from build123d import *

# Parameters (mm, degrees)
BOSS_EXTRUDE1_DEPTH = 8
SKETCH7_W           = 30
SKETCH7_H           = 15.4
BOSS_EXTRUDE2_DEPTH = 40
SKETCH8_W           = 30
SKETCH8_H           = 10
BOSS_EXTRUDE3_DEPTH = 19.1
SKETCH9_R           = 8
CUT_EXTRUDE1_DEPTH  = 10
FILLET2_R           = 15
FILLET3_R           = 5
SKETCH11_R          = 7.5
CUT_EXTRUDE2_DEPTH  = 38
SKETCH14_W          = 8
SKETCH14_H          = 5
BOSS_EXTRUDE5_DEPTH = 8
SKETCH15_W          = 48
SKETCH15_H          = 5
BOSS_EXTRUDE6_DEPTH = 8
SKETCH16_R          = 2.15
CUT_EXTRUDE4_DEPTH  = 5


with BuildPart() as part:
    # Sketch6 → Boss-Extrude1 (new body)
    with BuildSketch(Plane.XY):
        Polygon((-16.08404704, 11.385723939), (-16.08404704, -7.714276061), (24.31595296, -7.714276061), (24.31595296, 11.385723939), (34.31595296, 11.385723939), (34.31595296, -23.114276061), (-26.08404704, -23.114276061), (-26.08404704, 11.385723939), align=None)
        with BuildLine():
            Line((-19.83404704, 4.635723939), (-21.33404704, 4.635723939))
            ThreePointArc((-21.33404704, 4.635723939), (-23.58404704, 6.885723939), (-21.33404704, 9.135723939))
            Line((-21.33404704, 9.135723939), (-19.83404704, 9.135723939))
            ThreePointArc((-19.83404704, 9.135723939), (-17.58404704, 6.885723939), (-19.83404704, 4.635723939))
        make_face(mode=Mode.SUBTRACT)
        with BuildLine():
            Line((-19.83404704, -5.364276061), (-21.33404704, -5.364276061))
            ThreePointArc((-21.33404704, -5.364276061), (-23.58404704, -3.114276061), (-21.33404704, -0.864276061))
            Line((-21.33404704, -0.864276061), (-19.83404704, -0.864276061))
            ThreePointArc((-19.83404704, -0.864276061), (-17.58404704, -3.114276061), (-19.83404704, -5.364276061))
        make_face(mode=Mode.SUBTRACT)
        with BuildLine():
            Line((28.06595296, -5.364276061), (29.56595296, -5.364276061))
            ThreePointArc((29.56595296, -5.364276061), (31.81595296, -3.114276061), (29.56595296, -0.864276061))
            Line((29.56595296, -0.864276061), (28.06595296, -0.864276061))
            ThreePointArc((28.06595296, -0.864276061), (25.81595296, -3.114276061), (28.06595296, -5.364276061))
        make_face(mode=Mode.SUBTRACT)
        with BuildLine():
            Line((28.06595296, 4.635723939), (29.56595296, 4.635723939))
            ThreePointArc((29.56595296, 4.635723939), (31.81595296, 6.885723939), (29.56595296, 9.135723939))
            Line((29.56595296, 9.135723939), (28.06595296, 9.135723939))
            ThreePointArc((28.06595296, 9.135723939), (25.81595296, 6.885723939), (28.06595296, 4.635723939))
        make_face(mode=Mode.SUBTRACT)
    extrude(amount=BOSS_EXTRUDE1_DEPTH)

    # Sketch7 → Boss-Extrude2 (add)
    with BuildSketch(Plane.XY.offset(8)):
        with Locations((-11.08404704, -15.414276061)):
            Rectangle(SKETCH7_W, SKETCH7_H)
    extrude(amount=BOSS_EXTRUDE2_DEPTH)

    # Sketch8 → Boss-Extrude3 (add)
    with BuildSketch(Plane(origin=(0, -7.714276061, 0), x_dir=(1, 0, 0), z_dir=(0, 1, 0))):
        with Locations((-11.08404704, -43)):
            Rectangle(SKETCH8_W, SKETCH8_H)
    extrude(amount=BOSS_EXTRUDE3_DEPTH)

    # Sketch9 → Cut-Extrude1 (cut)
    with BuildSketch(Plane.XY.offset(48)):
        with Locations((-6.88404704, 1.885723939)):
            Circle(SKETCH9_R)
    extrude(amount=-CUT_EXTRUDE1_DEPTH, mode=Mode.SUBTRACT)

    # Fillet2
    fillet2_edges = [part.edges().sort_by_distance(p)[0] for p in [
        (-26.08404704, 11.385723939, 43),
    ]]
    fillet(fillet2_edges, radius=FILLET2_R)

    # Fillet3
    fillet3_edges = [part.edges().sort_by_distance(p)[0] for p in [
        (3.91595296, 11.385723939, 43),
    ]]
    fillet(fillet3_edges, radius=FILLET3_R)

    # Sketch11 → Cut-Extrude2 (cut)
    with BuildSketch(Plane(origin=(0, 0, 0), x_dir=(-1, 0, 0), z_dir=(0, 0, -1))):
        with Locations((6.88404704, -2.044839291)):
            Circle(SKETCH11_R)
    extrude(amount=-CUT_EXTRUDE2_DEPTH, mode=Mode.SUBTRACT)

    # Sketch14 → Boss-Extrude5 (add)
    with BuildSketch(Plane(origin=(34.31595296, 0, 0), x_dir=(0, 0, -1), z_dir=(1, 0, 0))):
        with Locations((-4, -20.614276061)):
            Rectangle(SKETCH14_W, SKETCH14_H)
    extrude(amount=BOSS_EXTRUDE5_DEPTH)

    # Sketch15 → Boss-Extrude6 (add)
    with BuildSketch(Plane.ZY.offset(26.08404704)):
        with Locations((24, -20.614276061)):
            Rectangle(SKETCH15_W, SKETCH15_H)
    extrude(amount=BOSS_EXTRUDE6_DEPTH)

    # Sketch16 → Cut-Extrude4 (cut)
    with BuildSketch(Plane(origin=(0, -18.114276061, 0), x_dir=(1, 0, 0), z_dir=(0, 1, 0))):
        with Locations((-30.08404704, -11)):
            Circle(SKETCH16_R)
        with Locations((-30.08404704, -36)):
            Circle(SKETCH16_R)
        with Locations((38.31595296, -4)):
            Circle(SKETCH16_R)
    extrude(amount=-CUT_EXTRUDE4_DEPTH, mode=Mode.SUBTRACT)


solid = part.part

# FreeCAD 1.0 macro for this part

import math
import FreeCAD as App
import Part
import Sketcher
Q = App.Units.Quantity


def edges_at(feature, points):
    """Names of the edges that pass closest to the given points."""
    edges = feature.Shape.Edges
    near = lambda p: min(range(len(edges)), key=lambda i: edges[i].distToShape(Part.Vertex(*p))[0])
    return sorted({f"Edge{near(p) + 1}" for p in points})

doc = App.newDocument("Part")
body = doc.addObject("PartDesign::Body", "Body")

# Sketch on XY plane
sketch1 = doc.addObject("Sketcher::SketchObject", "Sketch")
body.addObject(sketch1)
sketch1.AttachmentSupport = (doc.XY_Plane, [""])
sketch1.MapMode = "FlatFace"
sketch1.addGeometry(Part.LineSegment(App.Vector(-16.084047, -7.714276, 0), App.Vector(-16.084047, 11.385724, 0)), False)
sketch1.addGeometry(Part.LineSegment(App.Vector(-16.084047, 11.385724, 0), App.Vector(-26.084047, 11.385724, 0)), False)
sketch1.addGeometry(Part.LineSegment(App.Vector(-26.084047, 11.385724, 0), App.Vector(-26.084047, -23.114276, 0)), False)
sketch1.addGeometry(Part.LineSegment(App.Vector(-26.084047, -23.114276, 0), App.Vector(34.315953, -23.114276, 0)), False)
sketch1.addGeometry(Part.LineSegment(App.Vector(34.315953, -23.114276, 0), App.Vector(34.315953, 11.385724, 0)), False)
sketch1.addGeometry(Part.LineSegment(App.Vector(34.315953, 11.385724, 0), App.Vector(24.315953, 11.385724, 0)), False)
sketch1.addGeometry(Part.LineSegment(App.Vector(24.315953, 11.385724, 0), App.Vector(24.315953, -7.714276, 0)), False)
sketch1.addGeometry(Part.LineSegment(App.Vector(24.315953, -7.714276, 0), App.Vector(-16.084047, -7.714276, 0)), False)
sketch1.addGeometry(Part.ArcOfCircle(Part.Circle(App.Vector(28.065953, -3.114276, 0), App.Vector(0, 0, 1), 2.25), math.radians(90), math.radians(270)), False)
sketch1.addGeometry(Part.LineSegment(App.Vector(28.065953, -0.864276, 0), App.Vector(29.565953, -0.864276, 0)), False)
sketch1.addGeometry(Part.ArcOfCircle(Part.Circle(App.Vector(29.565953, -3.114276, 0), App.Vector(0, 0, 1), 2.25), math.radians(-90), math.radians(90)), False)
sketch1.addGeometry(Part.LineSegment(App.Vector(29.565953, -5.364276, 0), App.Vector(28.065953, -5.364276, 0)), False)
sketch1.addGeometry(Part.LineSegment(App.Vector(-19.834047, -5.364276, 0), App.Vector(-21.334047, -5.364276, 0)), False)
sketch1.addGeometry(Part.ArcOfCircle(Part.Circle(App.Vector(-21.334047, -3.114276, 0), App.Vector(0, 0, 1), 2.25), math.radians(90), math.radians(270)), False)
sketch1.addGeometry(Part.LineSegment(App.Vector(-21.334047, -0.864276, 0), App.Vector(-19.834047, -0.864276, 0)), False)
sketch1.addGeometry(Part.ArcOfCircle(Part.Circle(App.Vector(-19.834047, -3.114276, 0), App.Vector(0, 0, 1), 2.25), math.radians(-90), math.radians(90)), False)
sketch1.addGeometry(Part.ArcOfCircle(Part.Circle(App.Vector(28.065953, 6.885724, 0), App.Vector(0, 0, 1), 2.25), math.radians(90), math.radians(270)), False)
sketch1.addGeometry(Part.LineSegment(App.Vector(28.065953, 9.135724, 0), App.Vector(29.565953, 9.135724, 0)), False)
sketch1.addGeometry(Part.ArcOfCircle(Part.Circle(App.Vector(29.565953, 6.885724, 0), App.Vector(0, 0, 1), 2.25), math.radians(-90), math.radians(90)), False)
sketch1.addGeometry(Part.LineSegment(App.Vector(29.565953, 4.635724, 0), App.Vector(28.065953, 4.635724, 0)), False)
sketch1.addGeometry(Part.LineSegment(App.Vector(-19.834047, 4.635724, 0), App.Vector(-21.334047, 4.635724, 0)), False)
sketch1.addGeometry(Part.ArcOfCircle(Part.Circle(App.Vector(-21.334047, 6.885724, 0), App.Vector(0, 0, 1), 2.25), math.radians(90), math.radians(270)), False)
sketch1.addGeometry(Part.LineSegment(App.Vector(-21.334047, 9.135724, 0), App.Vector(-19.834047, 9.135724, 0)), False)
sketch1.addGeometry(Part.ArcOfCircle(Part.Circle(App.Vector(-19.834047, 6.885724, 0), App.Vector(0, 0, 1), 2.25), math.radians(-90), math.radians(90)), False)
sketch1.addConstraint(Sketcher.Constraint("Coincident", 0, 2, 1, 1))
sketch1.addConstraint(Sketcher.Constraint("Coincident", 1, 2, 2, 1))
sketch1.addConstraint(Sketcher.Constraint("Coincident", 2, 2, 3, 1))
sketch1.addConstraint(Sketcher.Constraint("Coincident", 3, 2, 4, 1))
sketch1.addConstraint(Sketcher.Constraint("Coincident", 4, 2, 5, 1))
sketch1.addConstraint(Sketcher.Constraint("Coincident", 5, 2, 6, 1))
sketch1.addConstraint(Sketcher.Constraint("Coincident", 6, 2, 7, 1))
sketch1.addConstraint(Sketcher.Constraint("Coincident", 7, 2, 0, 1))
sketch1.addConstraint(Sketcher.Constraint("Tangent", 8, 1, 9, 1))
sketch1.addConstraint(Sketcher.Constraint("Tangent", 9, 2, 10, 2))
sketch1.addConstraint(Sketcher.Constraint("Tangent", 10, 1, 11, 1))
sketch1.addConstraint(Sketcher.Constraint("Tangent", 11, 2, 8, 2))
sketch1.addConstraint(Sketcher.Constraint("Tangent", 12, 2, 13, 2))
sketch1.addConstraint(Sketcher.Constraint("Tangent", 13, 1, 14, 1))
sketch1.addConstraint(Sketcher.Constraint("Tangent", 14, 2, 15, 2))
sketch1.addConstraint(Sketcher.Constraint("Tangent", 15, 1, 12, 1))
sketch1.addConstraint(Sketcher.Constraint("Tangent", 16, 1, 17, 1))
sketch1.addConstraint(Sketcher.Constraint("Tangent", 17, 2, 18, 2))
sketch1.addConstraint(Sketcher.Constraint("Tangent", 18, 1, 19, 1))
sketch1.addConstraint(Sketcher.Constraint("Tangent", 19, 2, 16, 2))
sketch1.addConstraint(Sketcher.Constraint("Tangent", 20, 2, 21, 2))
sketch1.addConstraint(Sketcher.Constraint("Tangent", 21, 1, 22, 1))
sketch1.addConstraint(Sketcher.Constraint("Tangent", 22, 2, 23, 2))
sketch1.addConstraint(Sketcher.Constraint("Tangent", 23, 1, 20, 1))
sketch1.addConstraint(Sketcher.Constraint("Vertical", 0))
sketch1.addConstraint(Sketcher.Constraint("Horizontal", 1))
sketch1.addConstraint(Sketcher.Constraint("Vertical", 2))
sketch1.addConstraint(Sketcher.Constraint("Horizontal", 3))
sketch1.addConstraint(Sketcher.Constraint("Vertical", 4))
sketch1.addConstraint(Sketcher.Constraint("Horizontal", 5))
sketch1.addConstraint(Sketcher.Constraint("Vertical", 6))
sketch1.addConstraint(Sketcher.Constraint("Horizontal", 7))
sketch1.addConstraint(Sketcher.Constraint("Horizontal", 9))
sketch1.addConstraint(Sketcher.Constraint("Horizontal", 11))
sketch1.addConstraint(Sketcher.Constraint("Horizontal", 12))
sketch1.addConstraint(Sketcher.Constraint("Horizontal", 14))
sketch1.addConstraint(Sketcher.Constraint("Horizontal", 17))
sketch1.addConstraint(Sketcher.Constraint("Horizontal", 19))
sketch1.addConstraint(Sketcher.Constraint("Horizontal", 20))
sketch1.addConstraint(Sketcher.Constraint("Horizontal", 22))
sketch1.addConstraint(Sketcher.Constraint("Equal", 10, 13))
sketch1.addConstraint(Sketcher.Constraint("Equal", 15, 16))
sketch1.addConstraint(Sketcher.Constraint("Equal", 18, 21))
sketch1.addConstraint(Sketcher.Constraint("Horizontal", 10, 3, 13, 3))
sketch1.addConstraint(Sketcher.Constraint("Horizontal", 18, 3, 21, 3))
sketch1.addConstraint(Sketcher.Constraint("Horizontal", 1, 2, 4, 2))
sketch1.addConstraint(Sketcher.Constraint("Vertical", 8, 3, 16, 3))
sketch1.addConstraint(Sketcher.Constraint("Vertical", 10, 3, 18, 3))
sketch1.addConstraint(Sketcher.Constraint("Vertical", 13, 3, 21, 3))
sketch1.addConstraint(Sketcher.Constraint("Vertical", 15, 3, 23, 3))
sketch1.addConstraint(Sketcher.Constraint("Equal", 1, 5))
sketch1.addConstraint(Sketcher.Constraint("Equal", 11, 12))
sketch1.addConstraint(Sketcher.Constraint("DistanceX", 1, 2, 1, 1, Q("10 mm")))
sketch1.addConstraint(Sketcher.Constraint("Radius", 8, Q("2.25 mm")))
sketch1.addConstraint(Sketcher.Constraint("DistanceX", 3, 1, 3, 2, Q("60.4 mm")))
sketch1.addConstraint(Sketcher.Constraint("DistanceX", 9, 1, 9, 2, Q("1.5 mm")))
sketch1.addConstraint(Sketcher.Constraint("DistanceY", 0, 1, 0, 2, Q("19.1 mm")))
sketch1.addConstraint(Sketcher.Constraint("DistanceY", 2, 2, 2, 1, Q("34.5 mm")))
sketch1.addConstraint(Sketcher.Constraint("DistanceY", 8, 3, 16, 3, Q("10 mm")))
sketch1.addConstraint(Sketcher.Constraint("DistanceY", 2, 2, 13, 3, Q("20 mm")))
sketch1.addConstraint(Sketcher.Constraint("DistanceX", 13, 3, 8, 3, Q("49.4 mm")))
sketch1.addConstraint(Sketcher.Constraint("DistanceX", 23, 3, 0, 2, Q("3.75 mm")))
sketch1.addConstraint(Sketcher.Constraint("DistanceX", -1, 1, 8, 3, Q("28.065953 mm")))
sketch1.addConstraint(Sketcher.Constraint("DistanceY", 8, 3, -1, 1, Q("3.114276 mm")))
pad1 = doc.addObject("PartDesign::Pad", "Pad")
body.addObject(pad1)
pad1.Profile = sketch1
pad1.Length = 8

# Sketch on XY plane
sketch2 = doc.addObject("Sketcher::SketchObject", "Sketch001")
body.addObject(sketch2)
sketch2.AttachmentSupport = (doc.XY_Plane, [""])
sketch2.MapMode = "FlatFace"
sketch2.AttachmentOffset = App.Placement(App.Vector(0, 0, 8), App.Rotation())
sketch2.addGeometry(Part.LineSegment(App.Vector(-26.084047, -7.714276, 0), App.Vector(-26.084047, -23.114276, 0)), False)
sketch2.addGeometry(Part.LineSegment(App.Vector(-26.084047, -23.114276, 0), App.Vector(3.915953, -23.114276, 0)), False)
sketch2.addGeometry(Part.LineSegment(App.Vector(3.915953, -23.114276, 0), App.Vector(3.915953, -7.714276, 0)), False)
sketch2.addGeometry(Part.LineSegment(App.Vector(3.915953, -7.714276, 0), App.Vector(-26.084047, -7.714276, 0)), False)
sketch2.addConstraint(Sketcher.Constraint("Coincident", 0, 2, 1, 1))
sketch2.addConstraint(Sketcher.Constraint("Coincident", 1, 2, 2, 1))
sketch2.addConstraint(Sketcher.Constraint("Coincident", 2, 2, 3, 1))
sketch2.addConstraint(Sketcher.Constraint("Coincident", 3, 2, 0, 1))
sketch2.addConstraint(Sketcher.Constraint("Vertical", 0))
sketch2.addConstraint(Sketcher.Constraint("Horizontal", 1))
sketch2.addConstraint(Sketcher.Constraint("Vertical", 2))
sketch2.addConstraint(Sketcher.Constraint("Horizontal", 3))
sketch2.addConstraint(Sketcher.Constraint("DistanceX", 1, 1, 1, 2, Q("30 mm")))
sketch2.addConstraint(Sketcher.Constraint("DistanceY", 0, 2, 0, 1, Q("15.4 mm")))
sketch2.addConstraint(Sketcher.Constraint("DistanceX", 0, 2, -1, 1, Q("26.084047 mm")))
sketch2.addConstraint(Sketcher.Constraint("DistanceY", 0, 2, -1, 1, Q("23.114276 mm")))
pad2 = doc.addObject("PartDesign::Pad", "Pad001")
body.addObject(pad2)
pad2.Profile = sketch2
pad2.Length = 40

# Sketch on XZ plane
sketch3 = doc.addObject("Sketcher::SketchObject", "Sketch002")
body.addObject(sketch3)
sketch3.AttachmentSupport = (doc.XZ_Plane, [""])
sketch3.MapMode = "FlatFace"
sketch3.AttachmentOffset = App.Placement(App.Vector(0, 0, 7.714276), App.Rotation())
sketch3.addGeometry(Part.LineSegment(App.Vector(-26.084047, 38, 0), App.Vector(-26.084047, 48, 0)), False)
sketch3.addGeometry(Part.LineSegment(App.Vector(-26.084047, 48, 0), App.Vector(3.915953, 48, 0)), False)
sketch3.addGeometry(Part.LineSegment(App.Vector(3.915953, 48, 0), App.Vector(3.915953, 38, 0)), False)
sketch3.addGeometry(Part.LineSegment(App.Vector(3.915953, 38, 0), App.Vector(-26.084047, 38, 0)), False)
sketch3.addConstraint(Sketcher.Constraint("Coincident", 0, 2, 1, 1))
sketch3.addConstraint(Sketcher.Constraint("Coincident", 1, 2, 2, 1))
sketch3.addConstraint(Sketcher.Constraint("Coincident", 2, 2, 3, 1))
sketch3.addConstraint(Sketcher.Constraint("Coincident", 3, 2, 0, 1))
sketch3.addConstraint(Sketcher.Constraint("Vertical", 0))
sketch3.addConstraint(Sketcher.Constraint("Horizontal", 1))
sketch3.addConstraint(Sketcher.Constraint("Vertical", 2))
sketch3.addConstraint(Sketcher.Constraint("Horizontal", 3))
sketch3.addConstraint(Sketcher.Constraint("DistanceX", 1, 1, 1, 2, Q("30 mm")))
sketch3.addConstraint(Sketcher.Constraint("DistanceY", 0, 1, 0, 2, Q("10 mm")))
sketch3.addConstraint(Sketcher.Constraint("DistanceY", -1, 1, 0, 2, Q("48 mm")))
sketch3.addConstraint(Sketcher.Constraint("DistanceX", 0, 2, -1, 1, Q("26.084047 mm")))
pad3 = doc.addObject("PartDesign::Pad", "Pad002")
body.addObject(pad3)
pad3.Profile = sketch3
pad3.Length = 19.1
pad3.Reversed = True

# Sketch on XY plane
sketch4 = doc.addObject("Sketcher::SketchObject", "Sketch003")
body.addObject(sketch4)
sketch4.AttachmentSupport = (doc.XY_Plane, [""])
sketch4.MapMode = "FlatFace"
sketch4.AttachmentOffset = App.Placement(App.Vector(0, 0, 48), App.Rotation())
sketch4.addGeometry(Part.Circle(App.Vector(-6.884047, 1.885724, 0), App.Vector(0, 0, 1), 8), False)
sketch4.addConstraint(Sketcher.Constraint("Diameter", 0, Q("16 mm")))
sketch4.addConstraint(Sketcher.Constraint("DistanceX", 0, 3, -1, 1, Q("6.884047 mm")))
sketch4.addConstraint(Sketcher.Constraint("DistanceY", -1, 1, 0, 3, Q("1.885724 mm")))
pocket1 = doc.addObject("PartDesign::Pocket", "Pocket")
body.addObject(pocket1)
pocket1.Profile = sketch4
pocket1.Length = 10
doc.recompute()

fillet = doc.addObject("PartDesign::Fillet", "Fillet")
body.addObject(fillet)
fillet.Base = (pocket1, edges_at(pocket1, [(-26.084, 11.386, 43)]))
fillet.Radius = 15
doc.recompute()

fillet2 = doc.addObject("PartDesign::Fillet", "Fillet001")
body.addObject(fillet2)
fillet2.Base = (fillet, edges_at(fillet, [(3.916, 11.386, 43)]))
fillet2.Radius = 5

# Sketch on XY plane
sketch5 = doc.addObject("Sketcher::SketchObject", "Sketch004")
body.addObject(sketch5)
sketch5.AttachmentSupport = (doc.XY_Plane, [""])
sketch5.MapMode = "FlatFace"
sketch5.addGeometry(Part.Circle(App.Vector(-6.884047, -2.044839, 0), App.Vector(0, 0, 1), 7.5), False)
sketch5.addConstraint(Sketcher.Constraint("Diameter", 0, Q("15 mm")))
sketch5.addConstraint(Sketcher.Constraint("DistanceY", 0, 3, -1, 1, Q("2.044839 mm")))
sketch5.addConstraint(Sketcher.Constraint("DistanceX", 0, 3, -1, 1, Q("6.884047 mm")))
pocket2 = doc.addObject("PartDesign::Pocket", "Pocket001")
body.addObject(pocket2)
pocket2.Profile = sketch5
pocket2.Length = 38
pocket2.Reversed = True

# Sketch on YZ plane
sketch6 = doc.addObject("Sketcher::SketchObject", "Sketch005")
body.addObject(sketch6)
sketch6.AttachmentSupport = (doc.YZ_Plane, [""])
sketch6.MapMode = "FlatFace"
sketch6.AttachmentOffset = App.Placement(App.Vector(0, 0, 34.315953), App.Rotation())
sketch6.addGeometry(Part.LineSegment(App.Vector(-18.114276, 8, 0), App.Vector(-23.114276, 8, 0)), False)
sketch6.addGeometry(Part.LineSegment(App.Vector(-23.114276, 8, 0), App.Vector(-23.114276, 0, 0)), False)
sketch6.addGeometry(Part.LineSegment(App.Vector(-23.114276, 0, 0), App.Vector(-18.114276, 0, 0)), False)
sketch6.addGeometry(Part.LineSegment(App.Vector(-18.114276, 0, 0), App.Vector(-18.114276, 8, 0)), False)
sketch6.addConstraint(Sketcher.Constraint("Coincident", 0, 2, 1, 1))
sketch6.addConstraint(Sketcher.Constraint("Coincident", 1, 2, 2, 1))
sketch6.addConstraint(Sketcher.Constraint("Coincident", 2, 2, 3, 1))
sketch6.addConstraint(Sketcher.Constraint("Coincident", 3, 2, 0, 1))
sketch6.addConstraint(Sketcher.Constraint("Horizontal", 0))
sketch6.addConstraint(Sketcher.Constraint("Vertical", 1))
sketch6.addConstraint(Sketcher.Constraint("Horizontal", 2))
sketch6.addConstraint(Sketcher.Constraint("Vertical", 3))
sketch6.addConstraint(Sketcher.Constraint("PointOnObject", 1, 2, -1))
sketch6.addConstraint(Sketcher.Constraint("DistanceX", 0, 2, 0, 1, Q("5 mm")))
sketch6.addConstraint(Sketcher.Constraint("DistanceY", 1, 2, 1, 1, Q("8 mm")))
sketch6.addConstraint(Sketcher.Constraint("DistanceX", 0, 2, -1, 1, Q("23.114276 mm")))
pad4 = doc.addObject("PartDesign::Pad", "Pad003")
body.addObject(pad4)
pad4.Profile = sketch6
pad4.Length = 8

# Sketch on YZ plane
sketch7 = doc.addObject("Sketcher::SketchObject", "Sketch006")
body.addObject(sketch7)
sketch7.AttachmentSupport = (doc.YZ_Plane, [""])
sketch7.MapMode = "FlatFace"
sketch7.AttachmentOffset = App.Placement(App.Vector(0, 0, -26.084047), App.Rotation())
sketch7.addGeometry(Part.LineSegment(App.Vector(-18.114276, 0, 0), App.Vector(-23.114276, 0, 0)), False)
sketch7.addGeometry(Part.LineSegment(App.Vector(-23.114276, 0, 0), App.Vector(-23.114276, 48, 0)), False)
sketch7.addGeometry(Part.LineSegment(App.Vector(-23.114276, 48, 0), App.Vector(-18.114276, 48, 0)), False)
sketch7.addGeometry(Part.LineSegment(App.Vector(-18.114276, 48, 0), App.Vector(-18.114276, 0, 0)), False)
sketch7.addConstraint(Sketcher.Constraint("Coincident", 0, 2, 1, 1))
sketch7.addConstraint(Sketcher.Constraint("Coincident", 1, 2, 2, 1))
sketch7.addConstraint(Sketcher.Constraint("Coincident", 2, 2, 3, 1))
sketch7.addConstraint(Sketcher.Constraint("Coincident", 3, 2, 0, 1))
sketch7.addConstraint(Sketcher.Constraint("Horizontal", 0))
sketch7.addConstraint(Sketcher.Constraint("Vertical", 1))
sketch7.addConstraint(Sketcher.Constraint("Horizontal", 2))
sketch7.addConstraint(Sketcher.Constraint("Vertical", 3))
sketch7.addConstraint(Sketcher.Constraint("PointOnObject", 0, 2, -1))
sketch7.addConstraint(Sketcher.Constraint("DistanceX", 0, 2, 0, 1, Q("5 mm")))
sketch7.addConstraint(Sketcher.Constraint("DistanceY", 1, 1, 1, 2, Q("48 mm")))
sketch7.addConstraint(Sketcher.Constraint("DistanceX", 0, 2, -1, 1, Q("23.114276 mm")))
pad5 = doc.addObject("PartDesign::Pad", "Pad004")
body.addObject(pad5)
pad5.Profile = sketch7
pad5.Length = 8
pad5.Reversed = True

# Sketch on XZ plane
sketch8 = doc.addObject("Sketcher::SketchObject", "Sketch007")
body.addObject(sketch8)
sketch8.AttachmentSupport = (doc.XZ_Plane, [""])
sketch8.MapMode = "FlatFace"
sketch8.AttachmentOffset = App.Placement(App.Vector(0, 0, 18.114276), App.Rotation())
sketch8.addGeometry(Part.Circle(App.Vector(-30.084047, 11, 0), App.Vector(0, 0, 1), 2.15), False)
sketch8.addGeometry(Part.Circle(App.Vector(-30.084047, 36, 0), App.Vector(0, 0, 1), 2.15), False)
sketch8.addGeometry(Part.Circle(App.Vector(38.315953, 4, 0), App.Vector(0, 0, 1), 2.15), False)
sketch8.addConstraint(Sketcher.Constraint("Equal", 0, 1))
sketch8.addConstraint(Sketcher.Constraint("Equal", 1, 2))
sketch8.addConstraint(Sketcher.Constraint("Vertical", 0, 3, 1, 3))
sketch8.addConstraint(Sketcher.Constraint("Diameter", 0, Q("4.3 mm")))
sketch8.addConstraint(Sketcher.Constraint("DistanceY", -1, 1, 0, 3, Q("11 mm")))
sketch8.addConstraint(Sketcher.Constraint("DistanceY", -1, 1, 1, 3, Q("36 mm")))
sketch8.addConstraint(Sketcher.Constraint("DistanceY", -1, 1, 2, 3, Q("4 mm")))
sketch8.addConstraint(Sketcher.Constraint("DistanceX", 0, 3, 2, 3, Q("68.4 mm")))
sketch8.addConstraint(Sketcher.Constraint("DistanceX", 0, 3, -1, 1, Q("30.084047 mm")))
pocket3 = doc.addObject("PartDesign::Pocket", "Pocket002")
body.addObject(pocket3)
pocket3.Profile = sketch8
pocket3.Length = 5
pocket3.Reversed = True

doc.recompute()
